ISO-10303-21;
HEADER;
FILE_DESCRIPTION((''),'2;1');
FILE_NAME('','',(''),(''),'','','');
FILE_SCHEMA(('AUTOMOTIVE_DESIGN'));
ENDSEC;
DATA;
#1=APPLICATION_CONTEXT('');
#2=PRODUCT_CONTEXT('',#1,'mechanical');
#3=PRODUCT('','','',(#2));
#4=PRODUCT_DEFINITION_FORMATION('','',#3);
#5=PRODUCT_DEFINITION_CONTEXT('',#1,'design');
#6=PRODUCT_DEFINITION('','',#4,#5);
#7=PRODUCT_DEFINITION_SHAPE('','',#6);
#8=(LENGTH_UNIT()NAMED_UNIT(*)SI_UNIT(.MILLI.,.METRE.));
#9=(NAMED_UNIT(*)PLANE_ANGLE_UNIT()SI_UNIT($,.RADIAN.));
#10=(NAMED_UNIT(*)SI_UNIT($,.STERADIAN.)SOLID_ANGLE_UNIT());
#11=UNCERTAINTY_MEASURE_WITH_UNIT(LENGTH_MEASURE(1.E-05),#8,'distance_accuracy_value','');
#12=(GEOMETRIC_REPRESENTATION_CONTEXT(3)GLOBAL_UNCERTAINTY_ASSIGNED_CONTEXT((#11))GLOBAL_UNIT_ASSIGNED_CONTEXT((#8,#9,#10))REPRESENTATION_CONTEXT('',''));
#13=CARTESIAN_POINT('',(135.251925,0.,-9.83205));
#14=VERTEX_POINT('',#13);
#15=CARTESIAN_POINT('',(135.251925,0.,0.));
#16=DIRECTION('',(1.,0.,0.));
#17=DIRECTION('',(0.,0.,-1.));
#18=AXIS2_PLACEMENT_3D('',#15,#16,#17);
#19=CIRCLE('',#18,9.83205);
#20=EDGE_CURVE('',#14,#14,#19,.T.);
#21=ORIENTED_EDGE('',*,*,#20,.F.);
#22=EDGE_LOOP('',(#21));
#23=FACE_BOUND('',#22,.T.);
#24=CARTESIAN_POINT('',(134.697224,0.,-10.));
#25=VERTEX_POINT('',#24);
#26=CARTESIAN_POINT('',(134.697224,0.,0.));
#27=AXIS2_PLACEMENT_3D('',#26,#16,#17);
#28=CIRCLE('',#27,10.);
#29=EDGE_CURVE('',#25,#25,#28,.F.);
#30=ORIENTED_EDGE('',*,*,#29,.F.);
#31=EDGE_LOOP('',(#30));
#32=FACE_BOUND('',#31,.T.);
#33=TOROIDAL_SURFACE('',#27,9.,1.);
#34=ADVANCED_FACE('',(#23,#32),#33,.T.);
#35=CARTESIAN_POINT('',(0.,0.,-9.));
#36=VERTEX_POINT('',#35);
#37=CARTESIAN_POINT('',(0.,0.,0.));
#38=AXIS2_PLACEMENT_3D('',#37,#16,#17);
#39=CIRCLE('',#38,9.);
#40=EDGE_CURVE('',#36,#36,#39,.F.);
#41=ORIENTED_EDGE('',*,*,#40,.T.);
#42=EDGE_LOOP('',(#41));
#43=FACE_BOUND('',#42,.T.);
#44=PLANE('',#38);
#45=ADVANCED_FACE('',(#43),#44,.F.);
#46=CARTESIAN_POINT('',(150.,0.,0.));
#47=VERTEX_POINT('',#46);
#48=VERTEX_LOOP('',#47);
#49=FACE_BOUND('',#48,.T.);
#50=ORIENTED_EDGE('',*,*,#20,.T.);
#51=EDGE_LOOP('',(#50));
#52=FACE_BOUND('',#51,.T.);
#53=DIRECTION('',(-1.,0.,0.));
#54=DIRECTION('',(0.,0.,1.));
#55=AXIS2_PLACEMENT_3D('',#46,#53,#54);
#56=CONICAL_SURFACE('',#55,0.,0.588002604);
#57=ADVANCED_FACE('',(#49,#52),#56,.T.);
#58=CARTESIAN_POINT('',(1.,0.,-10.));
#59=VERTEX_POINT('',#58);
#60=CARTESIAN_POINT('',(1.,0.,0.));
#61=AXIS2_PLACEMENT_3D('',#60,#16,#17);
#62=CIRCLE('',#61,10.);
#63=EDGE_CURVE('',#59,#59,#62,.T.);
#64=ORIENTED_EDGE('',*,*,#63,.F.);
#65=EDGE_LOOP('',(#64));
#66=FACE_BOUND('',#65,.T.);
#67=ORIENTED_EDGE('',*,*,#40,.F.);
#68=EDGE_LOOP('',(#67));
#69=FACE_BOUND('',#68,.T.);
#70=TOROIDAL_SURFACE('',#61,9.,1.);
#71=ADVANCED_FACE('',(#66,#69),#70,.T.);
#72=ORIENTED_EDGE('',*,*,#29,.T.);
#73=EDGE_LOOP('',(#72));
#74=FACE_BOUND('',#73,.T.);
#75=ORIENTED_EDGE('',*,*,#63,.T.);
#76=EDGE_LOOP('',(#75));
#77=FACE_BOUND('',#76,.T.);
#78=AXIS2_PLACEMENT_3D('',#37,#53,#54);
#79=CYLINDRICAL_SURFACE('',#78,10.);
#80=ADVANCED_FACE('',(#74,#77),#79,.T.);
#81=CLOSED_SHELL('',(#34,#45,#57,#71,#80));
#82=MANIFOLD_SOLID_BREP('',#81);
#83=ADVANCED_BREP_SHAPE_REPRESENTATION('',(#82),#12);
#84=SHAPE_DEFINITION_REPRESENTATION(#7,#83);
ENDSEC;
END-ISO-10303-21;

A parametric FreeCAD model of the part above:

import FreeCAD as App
import Part
import Sketcher
from FreeCAD import Vector


def edges_at(feature, points):
    """Names of the edges that pass closest to the given points."""
    edges = feature.Shape.Edges
    near = lambda p: min(range(len(edges)), key=lambda i: edges[i].distToShape(Part.Vertex(*p))[0])
    return sorted({f"Edge{near(p) + 1}" for p in points})


def add_polygon(sketch, points):
    """Adds a closed chain of lines whose ends are joined by coincident constraints."""
    first, n = sketch.GeometryCount, len(points)
    for a, b in zip(points, points[1:] + points[:1]):
        sketch.addGeometry(Part.LineSegment(App.Vector(*a, 0), App.Vector(*b, 0)), False)
    for i in range(n):
        sketch.addConstraint(Sketcher.Constraint("Coincident", first + i, 2, first + (i + 1) % n, 1))

doc = App.newDocument("Part")
body = doc.addObject("PartDesign::Body", "Body")

# Sketch on XZ plane
sketch1 = body.newObject("Sketcher::SketchObject", "Sketch")
sketch1.AttachmentSupport = (doc.getObject("XZ_Plane"), [""])
sketch1.MapMode = "FlatFace"
add_polygon(sketch1, [(0, -10), (0, 0), (150, 0), (135, -10)])  # lines 0-3
sketch1.addConstraint(Sketcher.Constraint("Vertical", 0))
sketch1.addConstraint(Sketcher.Constraint("Horizontal", 1))
sketch1.addConstraint(Sketcher.Constraint("Horizontal", 3))
sketch1.addConstraint(Sketcher.Constraint("Coincident", 0, 2, -1, 1))
sketch1.addConstraint(Sketcher.Constraint("DistanceX", 1, 1, 1, 2, 150.0))
sketch1.addConstraint(Sketcher.Constraint("DistanceX", 3, 2, 3, 1, 135.0))
sketch1.addConstraint(Sketcher.Constraint("DistanceY", 0, 1, 0, 2, 10.0))
revolution = body.newObject("PartDesign::Revolution", "Revolution")
revolution.Profile = sketch1
revolution.ReferenceAxis = (sketch1, ["H_Axis"])
revolution.Angle = 360
doc.recompute()

fillet = body.newObject("PartDesign::Fillet", "Fillet")
fillet.Base = (revolution, edges_at(revolution, [(0, 0, -10), (135, 0, -10)]))
fillet.Radius = 1

doc.recompute()
